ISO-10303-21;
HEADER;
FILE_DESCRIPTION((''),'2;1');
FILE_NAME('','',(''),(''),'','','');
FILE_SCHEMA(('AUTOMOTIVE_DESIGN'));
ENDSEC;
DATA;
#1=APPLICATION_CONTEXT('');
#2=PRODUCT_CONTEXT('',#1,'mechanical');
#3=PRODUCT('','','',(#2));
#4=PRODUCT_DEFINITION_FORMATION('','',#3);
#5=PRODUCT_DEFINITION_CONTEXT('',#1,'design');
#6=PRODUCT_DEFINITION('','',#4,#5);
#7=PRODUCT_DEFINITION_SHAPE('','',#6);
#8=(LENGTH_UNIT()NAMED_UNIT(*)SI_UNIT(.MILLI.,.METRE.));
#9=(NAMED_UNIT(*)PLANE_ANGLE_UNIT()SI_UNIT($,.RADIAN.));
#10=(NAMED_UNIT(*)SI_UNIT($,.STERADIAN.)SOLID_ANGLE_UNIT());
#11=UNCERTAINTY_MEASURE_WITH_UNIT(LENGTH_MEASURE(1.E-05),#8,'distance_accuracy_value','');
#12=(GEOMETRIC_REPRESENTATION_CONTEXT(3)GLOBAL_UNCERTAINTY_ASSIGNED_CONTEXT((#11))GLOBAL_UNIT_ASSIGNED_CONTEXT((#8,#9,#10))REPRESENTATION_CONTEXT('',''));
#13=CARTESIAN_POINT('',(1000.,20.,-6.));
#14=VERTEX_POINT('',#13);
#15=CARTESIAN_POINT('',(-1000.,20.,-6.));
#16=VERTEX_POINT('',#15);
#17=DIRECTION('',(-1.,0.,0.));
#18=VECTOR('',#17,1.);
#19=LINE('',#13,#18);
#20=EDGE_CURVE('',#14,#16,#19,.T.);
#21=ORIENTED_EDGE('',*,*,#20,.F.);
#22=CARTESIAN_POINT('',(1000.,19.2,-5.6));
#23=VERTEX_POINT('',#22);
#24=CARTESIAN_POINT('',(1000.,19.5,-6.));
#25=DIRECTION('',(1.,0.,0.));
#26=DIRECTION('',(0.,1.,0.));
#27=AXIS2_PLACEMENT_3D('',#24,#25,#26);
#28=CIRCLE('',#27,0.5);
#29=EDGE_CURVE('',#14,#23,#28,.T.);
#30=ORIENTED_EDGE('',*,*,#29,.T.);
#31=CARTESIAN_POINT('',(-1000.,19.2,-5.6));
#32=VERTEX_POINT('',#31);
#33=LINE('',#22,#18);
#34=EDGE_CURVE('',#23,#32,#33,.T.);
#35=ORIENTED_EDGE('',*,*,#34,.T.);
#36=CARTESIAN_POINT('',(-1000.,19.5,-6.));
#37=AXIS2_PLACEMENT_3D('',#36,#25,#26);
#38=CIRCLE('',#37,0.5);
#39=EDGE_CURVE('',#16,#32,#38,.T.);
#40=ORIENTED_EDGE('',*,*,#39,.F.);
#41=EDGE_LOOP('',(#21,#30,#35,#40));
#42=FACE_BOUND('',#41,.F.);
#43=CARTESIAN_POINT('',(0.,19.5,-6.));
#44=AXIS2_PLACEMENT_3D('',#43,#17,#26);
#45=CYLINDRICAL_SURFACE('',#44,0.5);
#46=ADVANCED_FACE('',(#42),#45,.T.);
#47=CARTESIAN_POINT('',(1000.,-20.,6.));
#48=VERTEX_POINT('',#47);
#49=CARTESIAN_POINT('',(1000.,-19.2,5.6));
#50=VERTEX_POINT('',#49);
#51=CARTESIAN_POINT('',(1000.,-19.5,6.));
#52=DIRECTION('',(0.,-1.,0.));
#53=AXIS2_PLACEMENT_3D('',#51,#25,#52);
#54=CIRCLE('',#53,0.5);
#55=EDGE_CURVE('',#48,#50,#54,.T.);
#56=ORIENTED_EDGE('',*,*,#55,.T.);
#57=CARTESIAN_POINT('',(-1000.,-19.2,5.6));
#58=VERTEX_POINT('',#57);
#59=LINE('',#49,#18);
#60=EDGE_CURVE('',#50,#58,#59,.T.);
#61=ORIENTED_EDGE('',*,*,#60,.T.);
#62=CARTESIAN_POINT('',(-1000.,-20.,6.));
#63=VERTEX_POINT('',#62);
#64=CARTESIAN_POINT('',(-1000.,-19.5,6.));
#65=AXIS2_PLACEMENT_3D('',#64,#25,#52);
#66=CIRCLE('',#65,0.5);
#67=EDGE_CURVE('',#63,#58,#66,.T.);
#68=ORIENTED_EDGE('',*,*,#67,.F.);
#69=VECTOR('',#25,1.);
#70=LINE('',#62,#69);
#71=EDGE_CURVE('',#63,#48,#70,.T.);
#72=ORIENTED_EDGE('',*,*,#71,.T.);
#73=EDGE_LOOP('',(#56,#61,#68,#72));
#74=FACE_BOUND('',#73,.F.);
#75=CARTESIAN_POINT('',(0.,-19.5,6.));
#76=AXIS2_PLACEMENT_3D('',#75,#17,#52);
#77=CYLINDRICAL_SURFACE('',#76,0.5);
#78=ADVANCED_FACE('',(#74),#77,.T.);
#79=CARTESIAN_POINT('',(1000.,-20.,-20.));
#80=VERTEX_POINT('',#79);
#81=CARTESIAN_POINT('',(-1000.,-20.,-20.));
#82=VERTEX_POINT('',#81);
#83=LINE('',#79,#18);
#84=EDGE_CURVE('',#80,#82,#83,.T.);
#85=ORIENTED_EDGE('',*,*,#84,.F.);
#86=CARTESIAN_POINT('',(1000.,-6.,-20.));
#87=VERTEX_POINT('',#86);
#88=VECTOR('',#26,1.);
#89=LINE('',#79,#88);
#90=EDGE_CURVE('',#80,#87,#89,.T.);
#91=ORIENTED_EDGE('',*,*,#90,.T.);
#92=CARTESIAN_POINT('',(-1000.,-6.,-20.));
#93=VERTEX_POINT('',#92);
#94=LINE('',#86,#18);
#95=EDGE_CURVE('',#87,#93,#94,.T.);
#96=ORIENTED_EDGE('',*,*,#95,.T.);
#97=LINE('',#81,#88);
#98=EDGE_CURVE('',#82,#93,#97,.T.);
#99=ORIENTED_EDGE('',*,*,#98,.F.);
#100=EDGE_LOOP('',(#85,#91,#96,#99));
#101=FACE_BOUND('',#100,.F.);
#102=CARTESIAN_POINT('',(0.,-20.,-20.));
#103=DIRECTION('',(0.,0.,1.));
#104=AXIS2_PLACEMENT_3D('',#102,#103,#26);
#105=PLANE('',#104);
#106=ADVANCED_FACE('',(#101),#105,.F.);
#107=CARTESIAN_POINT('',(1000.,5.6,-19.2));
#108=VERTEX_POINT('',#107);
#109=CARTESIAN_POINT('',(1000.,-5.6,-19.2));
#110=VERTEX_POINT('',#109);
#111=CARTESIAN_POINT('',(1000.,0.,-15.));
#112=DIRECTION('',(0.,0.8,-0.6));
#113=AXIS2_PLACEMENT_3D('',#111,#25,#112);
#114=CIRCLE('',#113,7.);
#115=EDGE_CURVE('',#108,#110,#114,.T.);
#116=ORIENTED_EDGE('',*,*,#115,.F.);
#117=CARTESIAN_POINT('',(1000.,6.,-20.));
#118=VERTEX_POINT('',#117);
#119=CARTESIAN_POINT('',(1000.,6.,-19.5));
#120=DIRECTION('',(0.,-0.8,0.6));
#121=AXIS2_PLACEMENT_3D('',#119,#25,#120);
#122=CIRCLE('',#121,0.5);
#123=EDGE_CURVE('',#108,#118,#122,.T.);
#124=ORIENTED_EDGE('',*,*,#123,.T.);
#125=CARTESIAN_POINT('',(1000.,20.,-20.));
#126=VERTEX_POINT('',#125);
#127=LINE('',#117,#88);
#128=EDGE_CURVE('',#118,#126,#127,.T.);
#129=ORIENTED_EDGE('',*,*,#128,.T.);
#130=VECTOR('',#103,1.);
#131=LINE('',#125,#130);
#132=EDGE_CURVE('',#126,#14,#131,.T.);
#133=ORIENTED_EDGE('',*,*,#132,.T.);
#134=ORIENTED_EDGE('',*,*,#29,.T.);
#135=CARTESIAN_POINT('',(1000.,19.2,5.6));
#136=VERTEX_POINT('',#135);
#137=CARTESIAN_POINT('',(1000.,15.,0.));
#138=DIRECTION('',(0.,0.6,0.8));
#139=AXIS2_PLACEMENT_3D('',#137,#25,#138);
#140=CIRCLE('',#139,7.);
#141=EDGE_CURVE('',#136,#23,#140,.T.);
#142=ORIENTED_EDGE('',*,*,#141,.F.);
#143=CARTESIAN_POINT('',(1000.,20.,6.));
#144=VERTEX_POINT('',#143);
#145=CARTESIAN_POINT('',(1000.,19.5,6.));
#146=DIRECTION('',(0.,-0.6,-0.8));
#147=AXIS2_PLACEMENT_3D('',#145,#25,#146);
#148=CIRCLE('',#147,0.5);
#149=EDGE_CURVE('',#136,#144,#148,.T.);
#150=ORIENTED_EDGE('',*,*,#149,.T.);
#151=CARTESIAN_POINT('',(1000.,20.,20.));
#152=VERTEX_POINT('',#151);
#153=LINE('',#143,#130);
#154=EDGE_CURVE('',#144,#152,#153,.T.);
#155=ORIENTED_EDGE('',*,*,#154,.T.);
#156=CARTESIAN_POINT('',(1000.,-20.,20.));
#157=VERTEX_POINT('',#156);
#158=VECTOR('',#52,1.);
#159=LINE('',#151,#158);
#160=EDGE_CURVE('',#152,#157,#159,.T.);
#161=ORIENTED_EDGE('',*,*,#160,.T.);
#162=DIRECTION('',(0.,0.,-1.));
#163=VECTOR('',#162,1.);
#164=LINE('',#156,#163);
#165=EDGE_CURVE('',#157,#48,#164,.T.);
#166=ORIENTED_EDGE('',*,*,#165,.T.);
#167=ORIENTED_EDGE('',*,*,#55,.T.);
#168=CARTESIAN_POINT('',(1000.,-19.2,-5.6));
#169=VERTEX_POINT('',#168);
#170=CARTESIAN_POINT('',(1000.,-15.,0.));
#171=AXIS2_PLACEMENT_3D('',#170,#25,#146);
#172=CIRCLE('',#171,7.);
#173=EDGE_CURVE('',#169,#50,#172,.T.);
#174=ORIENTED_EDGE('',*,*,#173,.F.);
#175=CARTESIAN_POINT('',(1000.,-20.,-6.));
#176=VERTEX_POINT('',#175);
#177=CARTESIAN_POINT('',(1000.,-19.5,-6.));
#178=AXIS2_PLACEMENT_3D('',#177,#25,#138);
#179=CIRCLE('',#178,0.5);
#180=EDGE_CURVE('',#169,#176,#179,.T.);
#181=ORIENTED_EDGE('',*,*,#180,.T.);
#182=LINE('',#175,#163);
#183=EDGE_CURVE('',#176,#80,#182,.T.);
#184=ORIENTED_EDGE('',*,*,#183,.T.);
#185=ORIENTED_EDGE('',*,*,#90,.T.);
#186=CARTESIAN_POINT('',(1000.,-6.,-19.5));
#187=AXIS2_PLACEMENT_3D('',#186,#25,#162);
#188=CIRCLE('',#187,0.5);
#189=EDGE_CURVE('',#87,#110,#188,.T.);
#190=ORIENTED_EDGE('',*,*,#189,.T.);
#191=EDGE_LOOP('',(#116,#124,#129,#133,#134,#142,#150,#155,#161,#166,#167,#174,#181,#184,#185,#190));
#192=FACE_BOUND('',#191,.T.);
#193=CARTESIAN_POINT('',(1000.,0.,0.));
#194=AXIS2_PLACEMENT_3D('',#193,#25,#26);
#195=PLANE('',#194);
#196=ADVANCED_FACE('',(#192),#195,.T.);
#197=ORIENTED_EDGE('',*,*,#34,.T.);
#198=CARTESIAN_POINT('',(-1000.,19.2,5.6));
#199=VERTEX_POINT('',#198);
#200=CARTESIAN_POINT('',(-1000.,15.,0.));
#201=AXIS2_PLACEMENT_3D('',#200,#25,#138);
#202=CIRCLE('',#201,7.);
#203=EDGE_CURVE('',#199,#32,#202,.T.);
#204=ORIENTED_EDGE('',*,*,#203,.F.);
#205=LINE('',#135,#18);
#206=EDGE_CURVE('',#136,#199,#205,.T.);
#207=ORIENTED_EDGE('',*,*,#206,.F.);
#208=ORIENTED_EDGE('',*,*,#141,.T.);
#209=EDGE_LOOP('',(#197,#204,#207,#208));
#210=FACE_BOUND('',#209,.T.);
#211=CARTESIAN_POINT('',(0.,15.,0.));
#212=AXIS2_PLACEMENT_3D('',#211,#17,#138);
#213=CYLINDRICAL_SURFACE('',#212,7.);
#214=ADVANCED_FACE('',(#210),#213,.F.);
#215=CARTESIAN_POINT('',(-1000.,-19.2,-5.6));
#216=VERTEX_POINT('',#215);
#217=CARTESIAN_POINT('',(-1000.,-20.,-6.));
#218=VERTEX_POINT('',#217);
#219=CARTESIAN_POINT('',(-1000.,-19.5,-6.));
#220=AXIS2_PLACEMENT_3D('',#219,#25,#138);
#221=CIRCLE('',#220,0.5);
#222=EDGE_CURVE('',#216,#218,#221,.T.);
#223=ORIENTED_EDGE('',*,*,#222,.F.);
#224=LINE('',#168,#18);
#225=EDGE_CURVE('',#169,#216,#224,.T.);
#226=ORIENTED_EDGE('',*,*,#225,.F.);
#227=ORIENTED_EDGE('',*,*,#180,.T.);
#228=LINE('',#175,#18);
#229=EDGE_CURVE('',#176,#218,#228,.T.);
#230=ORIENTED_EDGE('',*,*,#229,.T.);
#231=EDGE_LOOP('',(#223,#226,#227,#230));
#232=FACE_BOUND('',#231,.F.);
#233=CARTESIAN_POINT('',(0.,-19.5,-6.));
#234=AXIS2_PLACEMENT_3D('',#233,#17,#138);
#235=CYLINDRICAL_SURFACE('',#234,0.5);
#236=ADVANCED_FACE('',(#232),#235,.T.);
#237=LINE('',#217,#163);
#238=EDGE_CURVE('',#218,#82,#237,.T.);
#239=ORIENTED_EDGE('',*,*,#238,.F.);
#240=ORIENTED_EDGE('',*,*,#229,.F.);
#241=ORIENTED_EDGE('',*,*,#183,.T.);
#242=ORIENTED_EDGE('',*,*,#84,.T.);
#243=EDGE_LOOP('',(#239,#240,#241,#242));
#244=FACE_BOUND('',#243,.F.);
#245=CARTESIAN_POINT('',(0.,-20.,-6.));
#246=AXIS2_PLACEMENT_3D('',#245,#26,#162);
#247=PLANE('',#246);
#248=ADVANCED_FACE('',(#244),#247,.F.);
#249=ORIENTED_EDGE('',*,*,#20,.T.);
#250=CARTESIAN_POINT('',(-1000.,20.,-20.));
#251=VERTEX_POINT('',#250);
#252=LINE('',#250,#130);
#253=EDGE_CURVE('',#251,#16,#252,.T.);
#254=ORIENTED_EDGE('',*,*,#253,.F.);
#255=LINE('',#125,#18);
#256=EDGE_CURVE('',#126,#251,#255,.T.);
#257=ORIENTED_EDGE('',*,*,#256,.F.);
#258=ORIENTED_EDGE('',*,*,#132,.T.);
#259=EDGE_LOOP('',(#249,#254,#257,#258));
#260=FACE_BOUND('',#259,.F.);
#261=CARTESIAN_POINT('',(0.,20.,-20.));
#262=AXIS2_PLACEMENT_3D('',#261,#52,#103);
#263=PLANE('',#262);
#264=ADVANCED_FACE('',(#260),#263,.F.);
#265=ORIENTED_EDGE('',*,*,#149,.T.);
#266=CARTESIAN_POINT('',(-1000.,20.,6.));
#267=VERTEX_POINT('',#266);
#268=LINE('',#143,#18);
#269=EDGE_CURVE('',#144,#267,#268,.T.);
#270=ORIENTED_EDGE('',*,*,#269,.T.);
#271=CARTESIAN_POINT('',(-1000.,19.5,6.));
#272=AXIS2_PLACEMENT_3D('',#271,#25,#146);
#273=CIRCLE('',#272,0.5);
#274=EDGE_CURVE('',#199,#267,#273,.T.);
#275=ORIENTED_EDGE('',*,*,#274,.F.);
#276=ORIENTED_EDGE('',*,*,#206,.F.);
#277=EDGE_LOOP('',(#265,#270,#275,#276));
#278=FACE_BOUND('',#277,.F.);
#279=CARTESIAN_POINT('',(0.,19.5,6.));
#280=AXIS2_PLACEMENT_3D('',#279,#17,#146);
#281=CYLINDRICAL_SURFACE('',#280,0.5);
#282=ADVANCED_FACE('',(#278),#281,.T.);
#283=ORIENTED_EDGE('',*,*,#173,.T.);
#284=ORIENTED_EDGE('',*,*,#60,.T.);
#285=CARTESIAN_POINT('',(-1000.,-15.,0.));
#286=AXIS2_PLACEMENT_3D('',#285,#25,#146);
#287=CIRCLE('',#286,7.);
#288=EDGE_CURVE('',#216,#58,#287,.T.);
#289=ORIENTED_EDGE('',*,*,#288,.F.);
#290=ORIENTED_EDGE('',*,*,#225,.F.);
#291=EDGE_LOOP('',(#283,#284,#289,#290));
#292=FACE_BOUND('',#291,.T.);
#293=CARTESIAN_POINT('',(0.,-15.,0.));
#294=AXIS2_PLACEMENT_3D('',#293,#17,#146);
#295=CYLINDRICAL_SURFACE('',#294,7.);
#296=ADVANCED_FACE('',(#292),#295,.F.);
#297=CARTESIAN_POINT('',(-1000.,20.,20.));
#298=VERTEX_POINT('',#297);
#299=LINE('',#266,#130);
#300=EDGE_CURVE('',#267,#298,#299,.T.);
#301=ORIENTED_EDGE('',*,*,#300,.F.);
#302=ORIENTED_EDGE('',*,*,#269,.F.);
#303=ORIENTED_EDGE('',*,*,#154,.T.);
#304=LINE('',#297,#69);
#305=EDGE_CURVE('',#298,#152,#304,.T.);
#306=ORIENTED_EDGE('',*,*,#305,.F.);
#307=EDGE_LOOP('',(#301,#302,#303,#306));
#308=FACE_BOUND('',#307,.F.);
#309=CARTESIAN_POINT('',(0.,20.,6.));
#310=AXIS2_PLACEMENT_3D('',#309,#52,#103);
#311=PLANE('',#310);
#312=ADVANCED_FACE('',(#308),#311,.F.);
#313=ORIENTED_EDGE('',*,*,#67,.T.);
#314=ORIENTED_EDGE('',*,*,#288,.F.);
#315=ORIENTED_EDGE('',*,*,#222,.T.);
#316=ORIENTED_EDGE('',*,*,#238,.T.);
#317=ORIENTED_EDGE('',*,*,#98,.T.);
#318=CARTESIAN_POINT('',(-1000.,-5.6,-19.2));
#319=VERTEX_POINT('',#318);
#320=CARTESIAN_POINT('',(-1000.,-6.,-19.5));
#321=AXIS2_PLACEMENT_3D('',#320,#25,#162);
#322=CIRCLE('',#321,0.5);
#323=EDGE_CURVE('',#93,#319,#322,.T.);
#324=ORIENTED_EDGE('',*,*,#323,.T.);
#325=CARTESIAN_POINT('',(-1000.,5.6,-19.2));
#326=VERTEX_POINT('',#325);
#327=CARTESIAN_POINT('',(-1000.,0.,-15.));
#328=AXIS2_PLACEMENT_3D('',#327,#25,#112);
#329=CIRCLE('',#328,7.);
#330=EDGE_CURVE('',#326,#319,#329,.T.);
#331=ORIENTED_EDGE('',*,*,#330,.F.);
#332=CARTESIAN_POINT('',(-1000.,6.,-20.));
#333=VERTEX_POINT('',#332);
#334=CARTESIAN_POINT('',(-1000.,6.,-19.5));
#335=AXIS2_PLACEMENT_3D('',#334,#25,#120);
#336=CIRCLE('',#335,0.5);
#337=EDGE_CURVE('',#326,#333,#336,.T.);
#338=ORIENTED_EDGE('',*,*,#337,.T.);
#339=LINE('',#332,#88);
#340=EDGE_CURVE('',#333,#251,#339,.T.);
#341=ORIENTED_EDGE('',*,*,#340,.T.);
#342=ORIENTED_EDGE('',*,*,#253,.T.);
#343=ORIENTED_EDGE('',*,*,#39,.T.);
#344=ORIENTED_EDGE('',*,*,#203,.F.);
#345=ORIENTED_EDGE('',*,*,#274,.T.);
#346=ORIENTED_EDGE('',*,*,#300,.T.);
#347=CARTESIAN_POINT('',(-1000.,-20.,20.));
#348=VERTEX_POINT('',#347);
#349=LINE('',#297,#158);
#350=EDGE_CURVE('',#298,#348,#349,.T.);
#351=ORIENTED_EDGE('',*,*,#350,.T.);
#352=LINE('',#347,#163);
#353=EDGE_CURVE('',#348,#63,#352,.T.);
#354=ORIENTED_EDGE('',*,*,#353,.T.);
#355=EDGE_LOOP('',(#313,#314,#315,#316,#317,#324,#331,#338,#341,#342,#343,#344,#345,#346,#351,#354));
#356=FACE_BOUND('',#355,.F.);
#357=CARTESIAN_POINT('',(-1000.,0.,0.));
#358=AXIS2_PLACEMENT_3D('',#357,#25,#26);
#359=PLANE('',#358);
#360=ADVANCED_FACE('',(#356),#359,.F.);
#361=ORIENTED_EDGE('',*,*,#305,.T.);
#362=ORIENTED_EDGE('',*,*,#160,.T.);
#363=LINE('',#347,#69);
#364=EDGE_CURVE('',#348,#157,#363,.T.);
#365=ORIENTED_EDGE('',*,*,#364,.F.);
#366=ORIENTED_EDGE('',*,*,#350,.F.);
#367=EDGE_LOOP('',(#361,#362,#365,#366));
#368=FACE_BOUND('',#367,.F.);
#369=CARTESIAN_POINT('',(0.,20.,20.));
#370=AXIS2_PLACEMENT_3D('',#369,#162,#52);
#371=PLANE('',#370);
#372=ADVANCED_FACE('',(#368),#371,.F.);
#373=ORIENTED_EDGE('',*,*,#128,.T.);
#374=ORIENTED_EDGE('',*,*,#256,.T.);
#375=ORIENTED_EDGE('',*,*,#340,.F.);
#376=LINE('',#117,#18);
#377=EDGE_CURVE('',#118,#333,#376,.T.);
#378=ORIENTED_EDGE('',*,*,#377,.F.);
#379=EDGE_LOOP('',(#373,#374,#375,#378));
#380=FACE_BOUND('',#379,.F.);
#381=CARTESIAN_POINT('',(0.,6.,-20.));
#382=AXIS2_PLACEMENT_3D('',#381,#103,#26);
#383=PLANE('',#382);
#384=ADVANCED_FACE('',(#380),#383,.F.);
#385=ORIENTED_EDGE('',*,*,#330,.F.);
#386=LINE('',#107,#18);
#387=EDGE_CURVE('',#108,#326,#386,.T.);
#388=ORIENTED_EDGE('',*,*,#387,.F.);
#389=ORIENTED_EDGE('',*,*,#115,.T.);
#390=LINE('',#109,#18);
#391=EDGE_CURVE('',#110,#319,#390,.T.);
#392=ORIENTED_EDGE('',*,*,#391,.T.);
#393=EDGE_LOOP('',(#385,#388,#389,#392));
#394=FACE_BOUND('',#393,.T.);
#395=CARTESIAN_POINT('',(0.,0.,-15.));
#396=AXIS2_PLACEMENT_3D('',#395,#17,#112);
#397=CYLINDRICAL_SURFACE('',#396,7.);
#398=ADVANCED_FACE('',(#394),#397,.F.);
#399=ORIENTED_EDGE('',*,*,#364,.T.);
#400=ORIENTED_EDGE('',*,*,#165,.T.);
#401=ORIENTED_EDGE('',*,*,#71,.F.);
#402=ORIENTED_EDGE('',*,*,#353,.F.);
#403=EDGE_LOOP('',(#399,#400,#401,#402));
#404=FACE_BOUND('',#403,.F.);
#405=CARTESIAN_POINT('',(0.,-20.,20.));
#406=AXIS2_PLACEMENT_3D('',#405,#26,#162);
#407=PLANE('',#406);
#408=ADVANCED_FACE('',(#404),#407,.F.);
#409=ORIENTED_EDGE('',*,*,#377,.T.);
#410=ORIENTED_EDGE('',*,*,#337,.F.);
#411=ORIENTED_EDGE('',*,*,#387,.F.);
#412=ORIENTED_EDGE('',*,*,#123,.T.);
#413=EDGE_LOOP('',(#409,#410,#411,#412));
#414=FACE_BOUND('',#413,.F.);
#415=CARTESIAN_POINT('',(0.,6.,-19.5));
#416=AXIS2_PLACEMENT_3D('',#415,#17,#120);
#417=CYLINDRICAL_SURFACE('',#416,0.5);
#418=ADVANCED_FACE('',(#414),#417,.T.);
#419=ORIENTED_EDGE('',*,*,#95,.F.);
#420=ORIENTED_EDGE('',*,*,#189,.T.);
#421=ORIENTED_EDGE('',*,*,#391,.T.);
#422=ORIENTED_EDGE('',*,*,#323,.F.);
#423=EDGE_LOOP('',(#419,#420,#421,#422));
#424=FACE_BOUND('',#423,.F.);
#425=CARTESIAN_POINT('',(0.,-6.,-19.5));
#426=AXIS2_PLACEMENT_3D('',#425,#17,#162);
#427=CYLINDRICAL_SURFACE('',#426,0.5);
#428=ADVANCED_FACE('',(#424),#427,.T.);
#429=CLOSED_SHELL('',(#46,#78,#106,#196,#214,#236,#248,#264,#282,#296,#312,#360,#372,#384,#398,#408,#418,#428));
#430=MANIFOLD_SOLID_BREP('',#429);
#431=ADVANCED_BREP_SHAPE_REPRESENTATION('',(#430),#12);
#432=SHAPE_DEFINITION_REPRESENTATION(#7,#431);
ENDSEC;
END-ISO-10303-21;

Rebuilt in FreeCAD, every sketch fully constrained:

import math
import FreeCAD as App
import Part
import Sketcher

V = App.Vector
Q = App.Units.Quantity

doc = App.newDocument("Part")
params = doc.addObject("Spreadsheet::Sheet", "Params")
for row, (alias, value) in enumerate([
    ("sketch1_radius", "7 mm"),
    ("sketch1_radius2", "0.5 mm"),
    ("sketch1_width", "40 mm"),
    ("sketch1_width2", "14 mm"),
    ("pad1_length", "2000 mm"),
], start=1):
    params.set(f"A{row}", alias)
    params.set(f"B{row}", "=" + value)
    params.setAlias(f"B{row}", alias)

body = doc.addObject("PartDesign::Body", "Body")

sketch1 = body.newObject("Sketcher::SketchObject", "Sketch")
sketch1.AttachmentSupport = (doc.getObject("YZ_Plane"), [""])
sketch1.MapMode = "FlatFace"
sketch1.addGeometry([
    Part.LineSegment(V(20, 6, 0), V(20, 20, 0)),
    Part.LineSegment(V(20, 20, 0), V(-20, 20, 0)),
    Part.LineSegment(V(-20, 20, 0), V(-20, 6, 0)),
    Part.ArcOfCircle(Part.Circle(V(-19.5, 6, 0), V(0, 0, 1), 0.5), math.radians(180), math.radians(306.869898)),
    Part.ArcOfCircle(Part.Circle(V(-15, 0, 0), V(0, 0, 1), 7), math.radians(-126.869898), math.radians(126.869898)),
    Part.ArcOfCircle(Part.Circle(V(-19.5, -6, 0), V(0, 0, 1), 0.5), math.radians(53.130102), math.radians(180)),
    Part.LineSegment(V(-20, -6, 0), V(-20, -20, 0)),
    Part.LineSegment(V(-20, -20, 0), V(-6, -20, 0)),
    Part.ArcOfCircle(Part.Circle(V(-6, -19.5, 0), V(0, 0, 1), 0.5), math.radians(-90), math.radians(36.869898)),
    Part.ArcOfCircle(Part.Circle(V(0, -15, 0), V(0, 0, 1), 7), math.radians(-36.869898), math.radians(216.869898)),
    Part.ArcOfCircle(Part.Circle(V(6, -19.5, 0), V(0, 0, 1), 0.5), math.radians(143.130102), math.radians(270)),
    Part.LineSegment(V(6, -20, 0), V(20, -20, 0)),
    Part.LineSegment(V(20, -20, 0), V(20, -6, 0)),
    Part.ArcOfCircle(Part.Circle(V(19.5, -6, 0), V(0, 0, 1), 0.5), math.radians(0), math.radians(126.869898)),
    Part.ArcOfCircle(Part.Circle(V(15, 0, 0), V(0, 0, 1), 7), math.radians(53.130102), math.radians(306.869898)),
    Part.ArcOfCircle(Part.Circle(V(19.5, 6, 0), V(0, 0, 1), 0.5), math.radians(-126.869898), math.radians(0)),
], False)
sketch1.addConstraint([
    Sketcher.Constraint("Coincident", 0, 2, 1, 1),
    Sketcher.Constraint("Coincident", 1, 2, 2, 1),
    Sketcher.Constraint("Tangent", 2, 2, 3, 1),
    Sketcher.Constraint("Tangent", 3, 2, 4, 2),
    Sketcher.Constraint("Tangent", 4, 1, 5, 1),
    Sketcher.Constraint("Tangent", 5, 2, 6, 1),
    Sketcher.Constraint("Coincident", 6, 2, 7, 1),
    Sketcher.Constraint("Tangent", 7, 2, 8, 1),
    Sketcher.Constraint("Tangent", 8, 2, 9, 2),
    Sketcher.Constraint("Tangent", 9, 1, 10, 1),
    Sketcher.Constraint("Tangent", 10, 2, 11, 1),
    Sketcher.Constraint("Coincident", 11, 2, 12, 1),
    Sketcher.Constraint("Tangent", 12, 2, 13, 1),
    Sketcher.Constraint("Tangent", 13, 2, 14, 2),
    Sketcher.Constraint("Tangent", 14, 1, 15, 1),
    Sketcher.Constraint("Tangent", 15, 2, 0, 1),
    Sketcher.Constraint("Vertical", 0),
    Sketcher.Constraint("Horizontal", 1),
    Sketcher.Constraint("Vertical", 2),
    Sketcher.Constraint("Vertical", 6),
    Sketcher.Constraint("Horizontal", 7),
    Sketcher.Constraint("Horizontal", 11),
    Sketcher.Constraint("Vertical", 12),
    Sketcher.Constraint("Equal", 3, 5),
    Sketcher.Constraint("Equal", 5, 8),
    Sketcher.Constraint("Equal", 4, 9),
    Sketcher.Constraint("Equal", 8, 10),
    Sketcher.Constraint("Equal", 10, 13),
    Sketcher.Constraint("Equal", 9, 14),
    Sketcher.Constraint("Equal", 13, 15),
    Sketcher.Constraint("Symmetric", 3, 3, 13, 3, -1, 1),
    Sketcher.Constraint("Symmetric", 5, 3, 15, 3, -1, 1),
    Sketcher.Constraint("Symmetric", 8, 3, 10, 3, -2),
    Sketcher.Constraint("Symmetric", 5, 3, 13, 3, -2),
    Sketcher.Constraint("Equal", 11, 0),
    Sketcher.Constraint("Equal", 2, 6),
    Sketcher.Constraint("Radius", 4, Q("7 mm")),
    Sketcher.Constraint("Radius", 3, Q("0.5 mm")),
    Sketcher.Constraint("DistanceX", 1, 2, 1, 1, Q("40 mm")),
    Sketcher.Constraint("DistanceX", 7, 1, 7, 2, Q("14 mm")),
    Sketcher.Constraint("DistanceY", -1, 1, 3, 3, Q("6 mm")),
])
sketch1.setExpression("Constraints[36]", "Params.sketch1_radius")
sketch1.setExpression("Constraints[37]", "Params.sketch1_radius2")
sketch1.setExpression("Constraints[38]", "Params.sketch1_width")
sketch1.setExpression("Constraints[39]", "Params.sketch1_width2")
pad1 = body.newObject("PartDesign::Pad", "Pad")
pad1.Profile = sketch1
pad1.setExpression("Length", "Params.pad1_length")
pad1.Midplane = True

doc.recompute()
